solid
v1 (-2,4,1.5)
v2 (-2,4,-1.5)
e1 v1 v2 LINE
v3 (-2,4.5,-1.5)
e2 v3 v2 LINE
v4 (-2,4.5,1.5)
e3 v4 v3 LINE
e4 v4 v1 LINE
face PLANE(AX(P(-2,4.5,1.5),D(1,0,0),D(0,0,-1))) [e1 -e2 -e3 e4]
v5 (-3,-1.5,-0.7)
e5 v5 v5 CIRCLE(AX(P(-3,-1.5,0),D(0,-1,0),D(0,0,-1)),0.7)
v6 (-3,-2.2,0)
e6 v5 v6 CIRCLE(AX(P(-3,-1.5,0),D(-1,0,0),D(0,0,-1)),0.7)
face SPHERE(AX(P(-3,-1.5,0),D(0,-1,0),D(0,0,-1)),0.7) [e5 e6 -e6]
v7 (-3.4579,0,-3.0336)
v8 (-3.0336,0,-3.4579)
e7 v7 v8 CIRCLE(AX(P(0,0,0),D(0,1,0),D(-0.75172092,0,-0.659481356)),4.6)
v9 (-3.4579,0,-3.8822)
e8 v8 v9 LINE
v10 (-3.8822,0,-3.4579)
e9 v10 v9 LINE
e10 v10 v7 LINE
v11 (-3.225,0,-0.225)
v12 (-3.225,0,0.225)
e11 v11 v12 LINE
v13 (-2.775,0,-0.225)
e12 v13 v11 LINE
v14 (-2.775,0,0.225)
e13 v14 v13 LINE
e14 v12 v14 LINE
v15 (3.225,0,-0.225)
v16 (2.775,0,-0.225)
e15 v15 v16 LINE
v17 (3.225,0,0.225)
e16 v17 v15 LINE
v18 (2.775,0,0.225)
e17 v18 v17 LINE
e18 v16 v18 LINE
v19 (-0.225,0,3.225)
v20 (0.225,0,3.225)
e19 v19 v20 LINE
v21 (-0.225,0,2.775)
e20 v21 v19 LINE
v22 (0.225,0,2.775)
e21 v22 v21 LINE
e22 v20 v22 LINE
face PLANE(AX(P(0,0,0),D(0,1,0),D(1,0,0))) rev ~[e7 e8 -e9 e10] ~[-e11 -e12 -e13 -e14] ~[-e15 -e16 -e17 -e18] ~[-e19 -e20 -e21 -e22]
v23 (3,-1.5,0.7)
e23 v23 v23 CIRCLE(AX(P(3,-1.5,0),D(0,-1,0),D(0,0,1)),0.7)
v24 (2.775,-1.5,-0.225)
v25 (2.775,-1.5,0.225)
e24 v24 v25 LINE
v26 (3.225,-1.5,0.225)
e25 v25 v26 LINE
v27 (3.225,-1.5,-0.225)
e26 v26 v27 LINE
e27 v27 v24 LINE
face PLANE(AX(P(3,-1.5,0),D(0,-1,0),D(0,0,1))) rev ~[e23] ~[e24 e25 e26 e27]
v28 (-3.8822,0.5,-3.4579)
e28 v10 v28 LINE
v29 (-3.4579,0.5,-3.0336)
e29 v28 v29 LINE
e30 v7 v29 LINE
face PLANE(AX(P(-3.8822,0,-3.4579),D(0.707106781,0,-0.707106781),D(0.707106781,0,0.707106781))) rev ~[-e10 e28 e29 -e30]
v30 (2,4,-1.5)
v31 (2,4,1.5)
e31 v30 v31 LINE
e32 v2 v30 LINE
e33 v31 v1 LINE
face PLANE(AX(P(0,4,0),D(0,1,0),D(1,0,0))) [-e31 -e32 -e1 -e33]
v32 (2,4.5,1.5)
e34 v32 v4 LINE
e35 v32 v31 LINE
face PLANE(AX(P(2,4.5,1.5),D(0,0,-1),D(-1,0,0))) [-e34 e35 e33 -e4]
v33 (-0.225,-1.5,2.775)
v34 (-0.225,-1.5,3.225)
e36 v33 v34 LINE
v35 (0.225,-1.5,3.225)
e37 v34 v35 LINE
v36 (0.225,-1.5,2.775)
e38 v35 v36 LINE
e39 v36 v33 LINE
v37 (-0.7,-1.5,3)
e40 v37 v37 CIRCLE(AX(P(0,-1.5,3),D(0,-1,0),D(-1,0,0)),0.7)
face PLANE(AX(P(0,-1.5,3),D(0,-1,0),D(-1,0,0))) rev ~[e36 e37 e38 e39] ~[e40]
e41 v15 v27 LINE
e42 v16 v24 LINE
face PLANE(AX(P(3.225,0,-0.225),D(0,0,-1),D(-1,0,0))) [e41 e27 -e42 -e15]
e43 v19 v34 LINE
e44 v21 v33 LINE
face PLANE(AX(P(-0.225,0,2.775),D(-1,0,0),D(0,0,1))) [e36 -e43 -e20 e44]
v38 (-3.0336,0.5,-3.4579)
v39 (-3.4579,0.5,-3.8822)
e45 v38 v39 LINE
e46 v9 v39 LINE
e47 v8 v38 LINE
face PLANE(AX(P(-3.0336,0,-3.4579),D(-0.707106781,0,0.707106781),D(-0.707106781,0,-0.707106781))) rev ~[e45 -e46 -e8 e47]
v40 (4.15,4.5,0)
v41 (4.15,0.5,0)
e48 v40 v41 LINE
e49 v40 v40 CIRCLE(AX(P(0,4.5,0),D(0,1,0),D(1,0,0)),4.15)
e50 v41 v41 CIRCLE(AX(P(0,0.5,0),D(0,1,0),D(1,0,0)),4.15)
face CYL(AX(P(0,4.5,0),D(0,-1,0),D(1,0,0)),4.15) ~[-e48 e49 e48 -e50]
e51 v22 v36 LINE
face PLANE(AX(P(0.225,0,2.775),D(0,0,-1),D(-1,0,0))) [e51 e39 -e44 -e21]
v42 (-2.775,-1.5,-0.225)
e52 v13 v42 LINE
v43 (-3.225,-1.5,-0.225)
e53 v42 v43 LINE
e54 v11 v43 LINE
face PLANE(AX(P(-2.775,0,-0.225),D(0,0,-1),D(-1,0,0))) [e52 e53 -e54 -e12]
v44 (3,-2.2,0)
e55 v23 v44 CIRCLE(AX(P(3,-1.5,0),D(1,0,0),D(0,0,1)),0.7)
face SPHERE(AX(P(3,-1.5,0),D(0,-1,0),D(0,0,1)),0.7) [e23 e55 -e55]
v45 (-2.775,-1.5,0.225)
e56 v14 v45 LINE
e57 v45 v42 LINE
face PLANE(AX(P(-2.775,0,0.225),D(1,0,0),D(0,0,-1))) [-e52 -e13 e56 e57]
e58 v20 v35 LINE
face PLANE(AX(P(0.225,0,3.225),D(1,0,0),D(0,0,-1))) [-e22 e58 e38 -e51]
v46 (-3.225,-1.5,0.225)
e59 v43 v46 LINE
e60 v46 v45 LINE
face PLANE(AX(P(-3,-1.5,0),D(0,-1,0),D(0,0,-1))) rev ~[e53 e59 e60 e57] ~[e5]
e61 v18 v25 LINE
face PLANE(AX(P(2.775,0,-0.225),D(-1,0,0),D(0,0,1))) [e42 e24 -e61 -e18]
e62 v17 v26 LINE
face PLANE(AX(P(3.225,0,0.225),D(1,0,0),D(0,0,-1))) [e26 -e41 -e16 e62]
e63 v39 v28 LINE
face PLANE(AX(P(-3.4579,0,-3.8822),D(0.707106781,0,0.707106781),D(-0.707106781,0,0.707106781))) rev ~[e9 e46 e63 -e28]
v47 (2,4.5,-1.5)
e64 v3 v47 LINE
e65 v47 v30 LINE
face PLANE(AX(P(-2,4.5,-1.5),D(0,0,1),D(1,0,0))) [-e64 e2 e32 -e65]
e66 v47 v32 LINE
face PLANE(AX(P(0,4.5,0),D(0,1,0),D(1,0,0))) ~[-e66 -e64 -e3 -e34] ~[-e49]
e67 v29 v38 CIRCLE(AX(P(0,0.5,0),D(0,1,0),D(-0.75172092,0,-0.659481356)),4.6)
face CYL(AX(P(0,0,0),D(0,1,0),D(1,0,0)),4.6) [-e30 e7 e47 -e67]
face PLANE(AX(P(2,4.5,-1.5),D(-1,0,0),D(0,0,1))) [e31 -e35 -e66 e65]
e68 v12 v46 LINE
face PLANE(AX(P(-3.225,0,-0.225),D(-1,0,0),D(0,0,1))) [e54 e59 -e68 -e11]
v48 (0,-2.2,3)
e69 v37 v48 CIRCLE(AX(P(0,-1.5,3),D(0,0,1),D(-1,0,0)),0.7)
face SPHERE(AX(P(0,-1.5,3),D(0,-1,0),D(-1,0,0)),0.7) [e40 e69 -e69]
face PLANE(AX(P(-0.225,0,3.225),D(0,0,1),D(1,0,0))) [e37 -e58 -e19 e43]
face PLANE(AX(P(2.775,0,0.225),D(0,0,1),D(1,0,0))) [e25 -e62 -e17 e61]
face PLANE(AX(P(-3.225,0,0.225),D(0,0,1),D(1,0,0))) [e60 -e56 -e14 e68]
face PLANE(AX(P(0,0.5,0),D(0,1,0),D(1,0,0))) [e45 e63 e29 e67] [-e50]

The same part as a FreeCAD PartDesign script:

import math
import FreeCAD as App
import Part
import Sketcher


def add_polygon(sketch, points):
    """Adds a closed chain of lines whose ends are joined by coincident constraints."""
    first, n = sketch.GeometryCount, len(points)
    for a, b in zip(points, points[1:] + points[:1]):
        sketch.addGeometry(Part.LineSegment(App.Vector(*a, 0), App.Vector(*b, 0)), False)
    for i in range(n):
        sketch.addConstraint(Sketcher.Constraint("Coincident", first + i, 2, first + (i + 1) % n, 1))

doc = App.newDocument("Part")
params = doc.addObject("Spreadsheet::Sheet", "Params")
for row, (alias, value) in enumerate([
    ("sketch1_width", "4.6 mm"),
    ("sketch1_height", "4.5 mm"),
    ("sketch1_height2", "0.5 mm"),
    ("sketch1_width2", "4.15 mm"),
    ("revolution_angle", "360 deg"),
    ("sketch2_width", "4 mm"),
    ("sketch2_height", "3 mm"),
    ("pocket1_length", "0.5 mm"),
    ("sketch3_width", "0.45 mm"),
    ("pad1_length", "2 mm"),
    ("sketch4_length", "0.6 mm"),
    ("sketch4_radius", "4.6 mm"),
    ("pad2_length", "0.5 mm"),
    ("sketch5_radius", "0.7 mm"),
    ("revolution2_angle", "360 deg"),
], start=1):
    params.set(f"A{row}", alias)
    params.set(f"B{row}", "=" + value)
    params.setAlias(f"B{row}", alias)

body = doc.addObject("PartDesign::Body", "Body")

# Sketch on XY plane
sketch1 = body.newObject("Sketcher::SketchObject", "Sketch")
sketch1.AttachmentSupport = (doc.getObject("XY_Plane"), [""])
sketch1.MapMode = "FlatFace"
add_polygon(sketch1, [(4.15, 4.5), (0, 4.5), (0, 0), (4.6, 0), (4.6, 0.5), (4.15, 0.5)])  # lines 0-5
sketch1.addConstraint(Sketcher.Constraint("Horizontal", 0))
sketch1.addConstraint(Sketcher.Constraint("Vertical", 1))
sketch1.addConstraint(Sketcher.Constraint("Horizontal", 2))
sketch1.addConstraint(Sketcher.Constraint("Vertical", 3))
sketch1.addConstraint(Sketcher.Constraint("Horizontal", 4))
sketch1.addConstraint(Sketcher.Constraint("Vertical", 5))
sketch1.addConstraint(Sketcher.Constraint("Coincident", 1, 2, -1, 1))
sketch1.addConstraint(Sketcher.Constraint("DistanceX", 2, 1, 2, 2, 4.6))
sketch1.addConstraint(Sketcher.Constraint("DistanceY", 1, 2, 1, 1, 4.5))
sketch1.addConstraint(Sketcher.Constraint("DistanceY", 3, 1, 3, 2, 0.5))
sketch1.addConstraint(Sketcher.Constraint("DistanceX", 0, 2, 0, 1, 4.15))
sketch1.setExpression("Constraints[13]", "Params.sketch1_width")
sketch1.setExpression("Constraints[14]", "Params.sketch1_height")
sketch1.setExpression("Constraints[15]", "Params.sketch1_height2")
sketch1.setExpression("Constraints[16]", "Params.sketch1_width2")
revolution = body.newObject("PartDesign::Revolution", "Revolution")
revolution.Profile = sketch1
revolution.ReferenceAxis = (sketch1, ["V_Axis"])
revolution.setExpression("Angle", "Params.revolution_angle")

# Sketch on XZ plane
sketch2 = body.newObject("Sketcher::SketchObject", "Sketch001")
sketch2.AttachmentSupport = (doc.getObject("XZ_Plane"), [""])
sketch2.MapMode = "FlatFace"
sketch2.AttachmentOffset = App.Placement(App.Vector(0, 0, -4.5), App.Rotation())
add_polygon(sketch2, [(2, -1.5), (-2, -1.5), (-2, 1.5), (2, 1.5)])  # lines 0-3
sketch2.addConstraint(Sketcher.Constraint("Horizontal", 0))
sketch2.addConstraint(Sketcher.Constraint("Vertical", 1))
sketch2.addConstraint(Sketcher.Constraint("Horizontal", 2))
sketch2.addConstraint(Sketcher.Constraint("Vertical", 3))
sketch2.addConstraint(Sketcher.Constraint("Symmetric", 0, 2, 2, 2, -1, 1))
sketch2.addConstraint(Sketcher.Constraint("DistanceX", 0, 2, 0, 1, 4.0))
sketch2.addConstraint(Sketcher.Constraint("DistanceY", 1, 1, 1, 2, 3.0))
sketch2.setExpression("Constraints[9]", "Params.sketch2_width")
sketch2.setExpression("Constraints[10]", "Params.sketch2_height")
pocket1 = body.newObject("PartDesign::Pocket", "Pocket")
pocket1.Profile = sketch2
pocket1.setExpression("Length", "Params.pocket1_length")
pocket1.Reversed = True

# Sketch on XZ plane
sketch3 = body.newObject("Sketcher::SketchObject", "Sketch002")
sketch3.AttachmentSupport = (doc.getObject("XZ_Plane"), [""])
sketch3.MapMode = "FlatFace"
add_polygon(sketch3, [(3.225, 0.225), (2.775, 0.225), (2.775, -0.225), (3.225, -0.225)])  # lines 0-3
add_polygon(sketch3, [(-2.775, 0.225), (-3.225, 0.225), (-3.225, -0.225), (-2.775, -0.225)])  # lines 4-7
add_polygon(sketch3, [(0.225, 3.225), (-0.225, 3.225), (-0.225, 2.775), (0.225, 2.775)])  # lines 8-11
sketch3.addConstraint(Sketcher.Constraint("Horizontal", 0))
sketch3.addConstraint(Sketcher.Constraint("Vertical", 1))
sketch3.addConstraint(Sketcher.Constraint("Horizontal", 2))
sketch3.addConstraint(Sketcher.Constraint("Vertical", 3))
sketch3.addConstraint(Sketcher.Constraint("Horizontal", 4))
sketch3.addConstraint(Sketcher.Constraint("Vertical", 5))
sketch3.addConstraint(Sketcher.Constraint("Horizontal", 6))
sketch3.addConstraint(Sketcher.Constraint("Vertical", 7))
sketch3.addConstraint(Sketcher.Constraint("Horizontal", 8))
sketch3.addConstraint(Sketcher.Constraint("Vertical", 9))
sketch3.addConstraint(Sketcher.Constraint("Horizontal", 10))
sketch3.addConstraint(Sketcher.Constraint("Vertical", 11))
sketch3.addConstraint(Sketcher.Constraint("Symmetric", 2, 2, 4, 2, -1, 1))
sketch3.addConstraint(Sketcher.Constraint("Symmetric", 0, 2, 6, 2, -1, 1))
sketch3.addConstraint(Sketcher.Constraint("Horizontal", 3, 2, 4, 2))
sketch3.addConstraint(Sketcher.Constraint("Equal", 6, 8))
sketch3.addConstraint(Sketcher.Constraint("Equal", 10, 1))
sketch3.addConstraint(Sketcher.Constraint("Equal", 7, 9))
sketch3.addConstraint(Sketcher.Constraint("DistanceY", 7, 2, 8, 2, 3.0))
sketch3.addConstraint(Sketcher.Constraint("DistanceX", 8, 2, 0, 2, 3.0))
sketch3.addConstraint(Sketcher.Constraint("DistanceX", 4, 2, 8, 2, 3.0))
sketch3.addConstraint(Sketcher.Constraint("DistanceX", 0, 2, 0, 1, 0.45))
sketch3.setExpression("Constraints[33]", "Params.sketch3_width")
pad1 = body.newObject("PartDesign::Pad", "Pad")
pad1.Profile = sketch3
pad1.setExpression("Length", "Params.pad1_length")

# Sketch on XZ plane
sketch4 = body.newObject("Sketcher::SketchObject", "Sketch003")
sketch4.AttachmentSupport = (doc.getObject("XZ_Plane"), [""])
sketch4.MapMode = "FlatFace"
sketch4.addGeometry(Part.ArcOfCircle(Part.Circle(App.Vector(0, 0, 0), App.Vector(0, 0, 1), 4.6), math.radians(-138.73967), math.radians(-131.26033)), False)
sketch4.addGeometry(Part.LineSegment(App.Vector(-3.4579, -3.0336, 0), App.Vector(-3.8822, -3.4579, 0)), False)
sketch4.addGeometry(Part.LineSegment(App.Vector(-3.8822, -3.4579, 0), App.Vector(-3.4579, -3.8822, 0)), False)
sketch4.addGeometry(Part.LineSegment(App.Vector(-3.4579, -3.8822, 0), App.Vector(-3.0336, -3.4579, 0)), False)
sketch4.addConstraint(Sketcher.Constraint("Coincident", 0, 1, 1, 1))
sketch4.addConstraint(Sketcher.Constraint("Coincident", 1, 2, 2, 1))
sketch4.addConstraint(Sketcher.Constraint("Coincident", 2, 2, 3, 1))
sketch4.addConstraint(Sketcher.Constraint("Coincident", 3, 2, 0, 2))
sketch4.addConstraint(Sketcher.Constraint("Coincident", 0, 3, -1, 1))
sketch4.addConstraint(Sketcher.Constraint("Perpendicular", 1, 2))
sketch4.addConstraint(Sketcher.Constraint("Perpendicular", 2, 3))
sketch4.addConstraint(Sketcher.Constraint("Horizontal", 1, 2, 3, 2))
sketch4.addConstraint(Sketcher.Constraint("Vertical", 0, 1, 2, 2))
sketch4.addConstraint(Sketcher.Constraint("Equal", 1, 2))
sketch4.addConstraint(Sketcher.Constraint("Distance", 1, 0.6))
sketch4.addConstraint(Sketcher.Constraint("Radius", 0, 4.6))
sketch4.setExpression("Constraints[10]", "Params.sketch4_length")
sketch4.setExpression("Constraints[11]", "Params.sketch4_radius")
pad2 = body.newObject("PartDesign::Pad", "Pad001")
pad2.Profile = sketch4
pad2.setExpression("Length", "Params.pad2_length")
pad2.Reversed = True

# Sketch on YZ plane
sketch5 = body.newObject("Sketcher::SketchObject", "Sketch004")
sketch5.AttachmentSupport = (doc.getObject("YZ_Plane"), [""])
sketch5.MapMode = "FlatFace"
sketch5.AttachmentOffset = App.Placement(App.Vector(0, 0, -3), App.Rotation())
sketch5.addGeometry(Part.LineSegment(App.Vector(-1.5, 0, 0), App.Vector(-1.5, -0.7, 0)), False)
sketch5.addGeometry(Part.ArcOfCircle(Part.Circle(App.Vector(-1.5, 0, 0), App.Vector(0, 0, 1), 0.7), math.radians(180), math.radians(270)), False)
sketch5.addGeometry(Part.LineSegment(App.Vector(-2.2, 0, 0), App.Vector(-1.5, 0, 0)), False)
sketch5.addConstraint(Sketcher.Constraint("Coincident", 0, 2, 1, 2))
sketch5.addConstraint(Sketcher.Constraint("Coincident", 1, 1, 2, 1))
sketch5.addConstraint(Sketcher.Constraint("Coincident", 2, 2, 0, 1))
sketch5.addConstraint(Sketcher.Constraint("Vertical", 0))
sketch5.addConstraint(Sketcher.Constraint("Horizontal", 2))
sketch5.addConstraint(Sketcher.Constraint("Coincident", 2, 2, 1, 3))
sketch5.addConstraint(Sketcher.Constraint("PointOnObject", 1, 3, -1))
sketch5.addConstraint(Sketcher.Constraint("Radius", 1, 0.7))
sketch5.addConstraint(Sketcher.Constraint("DistanceX", 1, 3, -1, 1, 1.5))
sketch5.setExpression("Constraints[7]", "Params.sketch5_radius")
revolution2 = body.newObject("PartDesign::Revolution", "Revolution001")
revolution2.Profile = sketch5
revolution2.ReferenceAxis = (sketch5, ["H_Axis"])
revolution2.setExpression("Angle", "Params.revolution2_angle")
doc.recompute()

polarpattern = body.newObject("PartDesign::PolarPattern", "PolarPattern")
polarpattern.Originals = [revolution2]
polarpattern.Axis = (doc.getObject("Y_Axis"), [""])
polarpattern.Angle = 180
polarpattern.Occurrences = 3
body.Tip = polarpattern

doc.recompute()
